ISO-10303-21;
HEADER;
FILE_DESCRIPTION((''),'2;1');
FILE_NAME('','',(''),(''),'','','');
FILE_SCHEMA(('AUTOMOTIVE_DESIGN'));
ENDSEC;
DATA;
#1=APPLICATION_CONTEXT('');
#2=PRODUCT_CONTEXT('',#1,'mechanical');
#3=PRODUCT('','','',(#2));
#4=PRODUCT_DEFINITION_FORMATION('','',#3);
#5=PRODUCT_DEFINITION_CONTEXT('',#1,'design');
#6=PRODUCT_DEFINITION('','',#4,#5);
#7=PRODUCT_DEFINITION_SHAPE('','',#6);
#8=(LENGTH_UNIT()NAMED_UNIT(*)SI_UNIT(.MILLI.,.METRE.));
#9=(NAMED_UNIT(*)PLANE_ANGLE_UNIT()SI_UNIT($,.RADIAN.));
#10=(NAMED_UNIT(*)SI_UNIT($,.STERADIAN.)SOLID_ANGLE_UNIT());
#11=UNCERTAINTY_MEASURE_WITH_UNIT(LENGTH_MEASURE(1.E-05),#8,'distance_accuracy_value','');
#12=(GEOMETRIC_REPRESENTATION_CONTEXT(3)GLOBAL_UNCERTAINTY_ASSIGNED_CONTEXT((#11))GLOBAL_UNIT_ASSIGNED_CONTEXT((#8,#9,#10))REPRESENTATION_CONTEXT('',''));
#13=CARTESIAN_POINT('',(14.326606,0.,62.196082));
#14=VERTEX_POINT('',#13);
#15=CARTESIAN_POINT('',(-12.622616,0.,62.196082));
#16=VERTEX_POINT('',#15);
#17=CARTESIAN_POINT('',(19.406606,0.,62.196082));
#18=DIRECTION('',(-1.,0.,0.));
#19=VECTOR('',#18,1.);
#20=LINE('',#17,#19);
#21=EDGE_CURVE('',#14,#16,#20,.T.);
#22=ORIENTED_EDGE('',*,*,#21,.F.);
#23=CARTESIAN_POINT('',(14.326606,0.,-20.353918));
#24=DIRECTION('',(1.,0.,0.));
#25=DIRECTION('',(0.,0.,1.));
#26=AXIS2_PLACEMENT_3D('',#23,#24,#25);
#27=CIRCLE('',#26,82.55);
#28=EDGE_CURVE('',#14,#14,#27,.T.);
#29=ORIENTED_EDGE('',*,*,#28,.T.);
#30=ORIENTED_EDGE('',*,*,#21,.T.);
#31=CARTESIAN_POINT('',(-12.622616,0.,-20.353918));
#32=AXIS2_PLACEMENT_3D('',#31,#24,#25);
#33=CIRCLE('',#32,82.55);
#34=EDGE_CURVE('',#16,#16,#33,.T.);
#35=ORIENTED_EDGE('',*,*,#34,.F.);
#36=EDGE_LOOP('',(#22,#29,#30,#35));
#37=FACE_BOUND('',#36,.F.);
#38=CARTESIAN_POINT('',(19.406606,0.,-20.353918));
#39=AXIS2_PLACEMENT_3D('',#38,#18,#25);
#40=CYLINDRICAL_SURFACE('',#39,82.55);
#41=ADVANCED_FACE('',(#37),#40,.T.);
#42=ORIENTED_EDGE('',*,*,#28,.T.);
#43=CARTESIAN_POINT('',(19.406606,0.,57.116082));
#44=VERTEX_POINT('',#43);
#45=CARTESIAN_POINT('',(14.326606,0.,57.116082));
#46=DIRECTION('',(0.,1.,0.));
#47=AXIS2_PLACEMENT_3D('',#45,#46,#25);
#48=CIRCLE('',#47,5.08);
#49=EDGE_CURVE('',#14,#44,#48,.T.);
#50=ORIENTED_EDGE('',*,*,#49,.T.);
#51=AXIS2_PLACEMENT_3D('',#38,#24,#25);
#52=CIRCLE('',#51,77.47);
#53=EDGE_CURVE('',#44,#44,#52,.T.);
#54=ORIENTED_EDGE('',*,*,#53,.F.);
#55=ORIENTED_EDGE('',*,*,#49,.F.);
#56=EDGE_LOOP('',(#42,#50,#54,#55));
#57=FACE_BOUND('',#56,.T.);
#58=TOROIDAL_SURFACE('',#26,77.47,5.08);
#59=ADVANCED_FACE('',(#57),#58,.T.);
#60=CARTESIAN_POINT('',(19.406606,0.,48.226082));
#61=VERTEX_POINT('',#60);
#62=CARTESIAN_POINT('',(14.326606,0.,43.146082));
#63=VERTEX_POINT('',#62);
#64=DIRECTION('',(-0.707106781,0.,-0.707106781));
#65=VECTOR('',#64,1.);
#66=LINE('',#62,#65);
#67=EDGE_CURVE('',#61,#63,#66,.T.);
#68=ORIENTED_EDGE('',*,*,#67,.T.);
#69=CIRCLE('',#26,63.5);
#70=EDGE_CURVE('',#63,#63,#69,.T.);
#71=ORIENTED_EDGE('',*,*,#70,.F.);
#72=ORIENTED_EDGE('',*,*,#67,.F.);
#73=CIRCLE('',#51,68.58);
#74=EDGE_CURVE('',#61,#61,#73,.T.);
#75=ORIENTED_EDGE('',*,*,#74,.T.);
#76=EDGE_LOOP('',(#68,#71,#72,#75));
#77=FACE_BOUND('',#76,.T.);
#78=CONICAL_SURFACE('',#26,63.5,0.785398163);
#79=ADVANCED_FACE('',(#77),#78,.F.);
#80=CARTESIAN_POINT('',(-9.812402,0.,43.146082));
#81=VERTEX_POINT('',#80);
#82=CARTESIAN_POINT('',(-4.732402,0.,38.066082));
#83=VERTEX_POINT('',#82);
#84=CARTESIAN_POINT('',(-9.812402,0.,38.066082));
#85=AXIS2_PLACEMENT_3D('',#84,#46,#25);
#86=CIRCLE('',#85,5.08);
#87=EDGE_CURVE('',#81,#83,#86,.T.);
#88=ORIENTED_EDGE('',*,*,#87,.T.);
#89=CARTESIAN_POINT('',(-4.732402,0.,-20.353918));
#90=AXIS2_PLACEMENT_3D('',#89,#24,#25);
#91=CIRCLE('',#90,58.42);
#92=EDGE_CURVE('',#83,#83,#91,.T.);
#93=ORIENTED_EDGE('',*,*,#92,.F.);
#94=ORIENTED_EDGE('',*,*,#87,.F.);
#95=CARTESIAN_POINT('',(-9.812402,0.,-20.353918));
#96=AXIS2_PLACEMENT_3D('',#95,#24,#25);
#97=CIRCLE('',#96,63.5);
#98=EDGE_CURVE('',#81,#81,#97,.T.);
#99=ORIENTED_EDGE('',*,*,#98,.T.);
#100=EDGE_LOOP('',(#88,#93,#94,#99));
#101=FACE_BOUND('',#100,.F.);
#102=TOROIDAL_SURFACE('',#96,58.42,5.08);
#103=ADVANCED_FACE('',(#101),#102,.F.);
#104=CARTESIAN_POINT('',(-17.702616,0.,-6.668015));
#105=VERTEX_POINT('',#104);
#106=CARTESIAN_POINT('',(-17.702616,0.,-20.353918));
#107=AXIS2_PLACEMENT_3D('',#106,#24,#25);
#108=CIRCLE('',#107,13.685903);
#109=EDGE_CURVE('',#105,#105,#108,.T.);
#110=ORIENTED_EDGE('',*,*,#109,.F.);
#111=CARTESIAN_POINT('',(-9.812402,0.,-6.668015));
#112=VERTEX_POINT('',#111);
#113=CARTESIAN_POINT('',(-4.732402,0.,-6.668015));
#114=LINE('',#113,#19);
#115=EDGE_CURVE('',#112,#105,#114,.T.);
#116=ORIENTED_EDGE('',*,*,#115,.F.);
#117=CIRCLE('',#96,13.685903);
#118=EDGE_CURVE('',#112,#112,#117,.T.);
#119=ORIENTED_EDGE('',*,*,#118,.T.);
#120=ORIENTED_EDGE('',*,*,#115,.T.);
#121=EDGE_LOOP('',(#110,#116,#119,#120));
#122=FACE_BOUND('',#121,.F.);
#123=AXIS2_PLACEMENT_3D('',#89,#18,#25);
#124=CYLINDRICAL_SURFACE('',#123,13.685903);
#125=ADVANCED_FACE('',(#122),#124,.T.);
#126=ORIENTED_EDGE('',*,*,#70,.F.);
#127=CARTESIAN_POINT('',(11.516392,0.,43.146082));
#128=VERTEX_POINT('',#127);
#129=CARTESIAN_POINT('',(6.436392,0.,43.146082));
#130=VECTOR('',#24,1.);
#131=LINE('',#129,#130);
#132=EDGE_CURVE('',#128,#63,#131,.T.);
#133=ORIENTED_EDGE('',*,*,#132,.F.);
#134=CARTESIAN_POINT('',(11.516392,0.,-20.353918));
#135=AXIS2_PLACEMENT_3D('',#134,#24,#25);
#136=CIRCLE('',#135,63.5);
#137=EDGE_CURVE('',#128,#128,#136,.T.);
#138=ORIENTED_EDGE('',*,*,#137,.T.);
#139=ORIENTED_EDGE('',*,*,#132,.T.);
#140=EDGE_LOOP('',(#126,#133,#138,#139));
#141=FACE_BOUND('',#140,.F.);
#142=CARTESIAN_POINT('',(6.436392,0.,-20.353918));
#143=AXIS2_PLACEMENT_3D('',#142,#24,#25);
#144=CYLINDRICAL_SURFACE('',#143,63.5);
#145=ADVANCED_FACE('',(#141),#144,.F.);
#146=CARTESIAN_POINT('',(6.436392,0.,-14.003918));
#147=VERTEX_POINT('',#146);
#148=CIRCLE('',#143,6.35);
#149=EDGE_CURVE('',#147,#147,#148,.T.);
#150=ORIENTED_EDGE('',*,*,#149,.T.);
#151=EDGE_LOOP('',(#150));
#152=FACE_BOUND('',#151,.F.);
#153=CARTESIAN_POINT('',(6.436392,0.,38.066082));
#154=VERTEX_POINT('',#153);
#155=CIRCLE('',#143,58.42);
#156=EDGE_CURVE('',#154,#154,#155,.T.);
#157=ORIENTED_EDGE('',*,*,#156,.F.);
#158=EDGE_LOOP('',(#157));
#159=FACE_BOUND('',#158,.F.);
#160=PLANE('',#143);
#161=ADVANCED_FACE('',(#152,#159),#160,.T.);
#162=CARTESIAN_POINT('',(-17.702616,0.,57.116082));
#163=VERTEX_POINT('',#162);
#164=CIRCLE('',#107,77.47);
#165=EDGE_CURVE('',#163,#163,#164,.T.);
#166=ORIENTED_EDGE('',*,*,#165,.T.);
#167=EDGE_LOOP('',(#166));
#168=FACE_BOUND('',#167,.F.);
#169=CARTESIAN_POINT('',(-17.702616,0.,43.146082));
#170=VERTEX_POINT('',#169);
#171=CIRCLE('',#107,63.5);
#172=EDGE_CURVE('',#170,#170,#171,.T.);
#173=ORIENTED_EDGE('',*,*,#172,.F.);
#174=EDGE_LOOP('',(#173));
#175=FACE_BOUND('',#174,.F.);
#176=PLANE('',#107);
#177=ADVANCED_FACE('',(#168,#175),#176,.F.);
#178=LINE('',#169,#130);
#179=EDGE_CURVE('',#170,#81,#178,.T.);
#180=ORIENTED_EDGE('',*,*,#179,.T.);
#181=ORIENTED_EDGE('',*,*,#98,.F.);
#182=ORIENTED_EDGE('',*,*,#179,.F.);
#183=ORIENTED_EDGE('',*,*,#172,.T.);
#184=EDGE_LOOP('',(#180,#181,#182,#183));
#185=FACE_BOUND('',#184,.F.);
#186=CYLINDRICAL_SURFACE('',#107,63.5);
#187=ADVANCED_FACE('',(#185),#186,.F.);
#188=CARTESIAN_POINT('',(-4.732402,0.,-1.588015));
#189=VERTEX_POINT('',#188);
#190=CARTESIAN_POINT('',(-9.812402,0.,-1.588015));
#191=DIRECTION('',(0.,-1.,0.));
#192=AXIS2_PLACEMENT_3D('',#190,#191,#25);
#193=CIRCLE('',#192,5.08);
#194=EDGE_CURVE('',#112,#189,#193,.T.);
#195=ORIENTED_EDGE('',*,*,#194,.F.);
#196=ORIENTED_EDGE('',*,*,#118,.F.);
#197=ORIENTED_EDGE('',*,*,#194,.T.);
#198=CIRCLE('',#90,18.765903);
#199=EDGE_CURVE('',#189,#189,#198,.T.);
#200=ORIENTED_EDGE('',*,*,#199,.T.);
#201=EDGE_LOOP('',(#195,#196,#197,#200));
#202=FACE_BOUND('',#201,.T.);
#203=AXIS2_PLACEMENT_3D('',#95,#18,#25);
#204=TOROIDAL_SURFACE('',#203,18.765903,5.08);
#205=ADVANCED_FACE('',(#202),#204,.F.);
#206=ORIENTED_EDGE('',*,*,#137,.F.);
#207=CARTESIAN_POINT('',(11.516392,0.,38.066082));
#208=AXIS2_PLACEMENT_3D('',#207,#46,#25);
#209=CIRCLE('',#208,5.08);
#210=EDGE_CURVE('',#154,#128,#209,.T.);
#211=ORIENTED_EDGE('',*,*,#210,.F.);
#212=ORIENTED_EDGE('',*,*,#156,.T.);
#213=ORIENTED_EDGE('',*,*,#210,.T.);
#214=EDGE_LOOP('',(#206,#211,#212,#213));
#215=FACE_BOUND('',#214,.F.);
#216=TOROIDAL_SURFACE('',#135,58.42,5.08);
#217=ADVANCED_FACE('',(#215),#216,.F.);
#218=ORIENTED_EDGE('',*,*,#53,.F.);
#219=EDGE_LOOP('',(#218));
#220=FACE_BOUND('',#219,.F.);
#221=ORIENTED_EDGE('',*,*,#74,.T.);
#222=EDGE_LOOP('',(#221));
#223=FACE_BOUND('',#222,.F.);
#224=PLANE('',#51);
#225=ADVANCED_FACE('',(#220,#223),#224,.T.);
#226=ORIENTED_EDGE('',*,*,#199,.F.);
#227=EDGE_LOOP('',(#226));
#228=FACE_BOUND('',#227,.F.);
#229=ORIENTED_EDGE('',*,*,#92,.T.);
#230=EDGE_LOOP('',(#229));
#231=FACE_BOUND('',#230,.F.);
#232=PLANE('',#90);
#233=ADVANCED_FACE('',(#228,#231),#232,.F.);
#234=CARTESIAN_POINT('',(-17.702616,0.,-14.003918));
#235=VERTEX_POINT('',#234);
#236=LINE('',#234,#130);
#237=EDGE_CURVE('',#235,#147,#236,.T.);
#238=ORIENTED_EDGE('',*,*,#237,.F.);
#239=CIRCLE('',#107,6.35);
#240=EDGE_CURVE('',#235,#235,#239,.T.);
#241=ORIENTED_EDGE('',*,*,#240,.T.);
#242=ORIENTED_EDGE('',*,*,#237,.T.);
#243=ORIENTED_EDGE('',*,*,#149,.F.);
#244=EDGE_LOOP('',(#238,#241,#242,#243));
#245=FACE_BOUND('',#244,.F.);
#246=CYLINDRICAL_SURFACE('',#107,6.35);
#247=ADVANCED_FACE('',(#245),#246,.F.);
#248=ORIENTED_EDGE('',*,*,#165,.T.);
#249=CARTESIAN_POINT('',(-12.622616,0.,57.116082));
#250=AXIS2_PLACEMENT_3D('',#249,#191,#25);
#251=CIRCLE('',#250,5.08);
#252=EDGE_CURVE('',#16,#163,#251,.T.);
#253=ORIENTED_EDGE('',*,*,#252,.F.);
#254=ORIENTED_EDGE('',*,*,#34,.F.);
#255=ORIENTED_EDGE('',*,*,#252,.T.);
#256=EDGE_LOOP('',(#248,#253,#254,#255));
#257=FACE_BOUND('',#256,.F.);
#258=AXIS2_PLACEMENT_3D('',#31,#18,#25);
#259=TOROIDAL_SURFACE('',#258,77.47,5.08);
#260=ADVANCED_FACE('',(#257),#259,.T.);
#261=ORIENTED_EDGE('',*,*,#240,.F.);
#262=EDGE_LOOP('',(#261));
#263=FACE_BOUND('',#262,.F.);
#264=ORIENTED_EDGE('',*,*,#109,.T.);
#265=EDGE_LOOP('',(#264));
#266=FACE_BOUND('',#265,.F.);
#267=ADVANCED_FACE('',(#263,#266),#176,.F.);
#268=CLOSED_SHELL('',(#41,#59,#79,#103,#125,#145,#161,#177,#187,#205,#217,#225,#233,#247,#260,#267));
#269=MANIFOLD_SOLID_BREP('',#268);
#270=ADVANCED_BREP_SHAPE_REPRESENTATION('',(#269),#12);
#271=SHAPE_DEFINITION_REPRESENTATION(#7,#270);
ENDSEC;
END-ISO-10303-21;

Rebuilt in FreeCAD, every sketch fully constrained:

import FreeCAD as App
import Part
import Sketcher
Q = App.Units.Quantity


def edges_at(feature, points):
    """Names of the edges that pass closest to the given points."""
    edges = feature.Shape.Edges
    near = lambda p: min(range(len(edges)), key=lambda i: edges[i].distToShape(Part.Vertex(*p))[0])
    return sorted({f"Edge{near(p) + 1}" for p in points})


def add_polygon(sketch, points):
    """Adds a closed chain of lines whose ends are joined by coincident constraints."""
    first, n = sketch.GeometryCount, len(points)
    for a, b in zip(points, points[1:] + points[:1]):
        sketch.addGeometry(Part.LineSegment(App.Vector(*a, 0), App.Vector(*b, 0)), False)
    for i in range(n):
        sketch.addConstraint(Sketcher.Constraint("Coincident", first + i, 2, first + (i + 1) % n, 1))

doc = App.newDocument("Part")
body = doc.addObject("PartDesign::Body", "Body")

sketch1 = doc.addObject("Sketcher::SketchObject", "Sketch")
body.addObject(sketch1)
sketch1.AttachmentSupport = (doc.XZ_Plane, [""])
sketch1.MapMode = "FlatFace"
add_polygon(sketch1, [(19, 62), (-18, 62), (-18, 43), (-5, 43), (-5, -7), (-18, -7), (-18, -14), (6, -14), (6, 43), (19, 43)])
sketch1.addGeometry(Part.LineSegment(App.Vector(-18, -20, 0), App.Vector(19, -20, 0)), True)
sketch1.addConstraint(Sketcher.Constraint("Horizontal", 0))
sketch1.addConstraint(Sketcher.Constraint("Vertical", 1))
sketch1.addConstraint(Sketcher.Constraint("Horizontal", 2))
sketch1.addConstraint(Sketcher.Constraint("Vertical", 3))
sketch1.addConstraint(Sketcher.Constraint("Horizontal", 4))
sketch1.addConstraint(Sketcher.Constraint("Vertical", 5))
sketch1.addConstraint(Sketcher.Constraint("Horizontal", 6))
sketch1.addConstraint(Sketcher.Constraint("Vertical", 7))
sketch1.addConstraint(Sketcher.Constraint("Horizontal", 8))
sketch1.addConstraint(Sketcher.Constraint("Vertical", 9))
sketch1.addConstraint(Sketcher.Constraint("Horizontal", 10))
sketch1.addConstraint(Sketcher.Constraint("Horizontal", 2, 2, 7, 2))
sketch1.addConstraint(Sketcher.Constraint("Vertical", 1, 2, 4, 2))
sketch1.addConstraint(Sketcher.Constraint("Vertical", 5, 2, 10, 1))
sketch1.addConstraint(Sketcher.Constraint("Vertical", 9, 2, 10, 2))
sketch1.addConstraint(Sketcher.Constraint("Equal", 4, 8))
sketch1.addConstraint(Sketcher.Constraint("DistanceY", 5, 2, 0, 2, Q("3 in")))
sketch1.addConstraint(Sketcher.Constraint("DistanceY", 1, 2, 1, 1, Q("0.75 in")))
sketch1.addConstraint(Sketcher.Constraint("DistanceY", 10, 1, 1, 2, Q("2.5 in")))
sketch1.addConstraint(Sketcher.Constraint("DistanceX", 0, 2, 0, 1, Q("37.109222 mm")))
sketch1.addConstraint(Sketcher.Constraint("DistanceX", 6, 1, 6, 2, Q("24.139008 mm")))
sketch1.addConstraint(Sketcher.Constraint("DistanceY", 3, 2, 3, 1, Q("49.814097 mm")))
sketch1.addConstraint(Sketcher.Constraint("DistanceY", -1, 1, 0, 2, Q("62.196082 mm")))
sketch1.addConstraint(Sketcher.Constraint("DistanceX", 0, 2, -1, 1, Q("17.702616 mm")))
revolution = doc.addObject("PartDesign::Revolution", "Revolution")
body.addObject(revolution)
revolution.Profile = sketch1
revolution.ReferenceAxis = (sketch1, ["Axis0"])
revolution.Angle = 360
doc.recompute()

fillet = doc.addObject("PartDesign::Fillet", "Fillet")
body.addObject(fillet)
fillet.Base = (revolution, edges_at(revolution, [
    (-4.732, 0, -83.854),
    (6.436, 0, -83.854),
    (19.407, 0, -102.904),
    (-17.703, 0, -102.904),
]))
fillet.Radius = Q("0.2 in")
doc.recompute()

chamfer = doc.addObject("PartDesign::Chamfer", "Chamfer")
body.addObject(chamfer)
chamfer.Base = (fillet, edges_at(fillet, [(19.407, 0, -83.854)]))
chamfer.Size = Q("0.2 in")
doc.recompute()

fillet2 = doc.addObject("PartDesign::Fillet", "Fillet001")
body.addObject(fillet2)
fillet2.Base = (chamfer, edges_at(chamfer, [(-4.732, 0, -34.04)]))
fillet2.Radius = Q("0.2 in")

doc.recompute()
